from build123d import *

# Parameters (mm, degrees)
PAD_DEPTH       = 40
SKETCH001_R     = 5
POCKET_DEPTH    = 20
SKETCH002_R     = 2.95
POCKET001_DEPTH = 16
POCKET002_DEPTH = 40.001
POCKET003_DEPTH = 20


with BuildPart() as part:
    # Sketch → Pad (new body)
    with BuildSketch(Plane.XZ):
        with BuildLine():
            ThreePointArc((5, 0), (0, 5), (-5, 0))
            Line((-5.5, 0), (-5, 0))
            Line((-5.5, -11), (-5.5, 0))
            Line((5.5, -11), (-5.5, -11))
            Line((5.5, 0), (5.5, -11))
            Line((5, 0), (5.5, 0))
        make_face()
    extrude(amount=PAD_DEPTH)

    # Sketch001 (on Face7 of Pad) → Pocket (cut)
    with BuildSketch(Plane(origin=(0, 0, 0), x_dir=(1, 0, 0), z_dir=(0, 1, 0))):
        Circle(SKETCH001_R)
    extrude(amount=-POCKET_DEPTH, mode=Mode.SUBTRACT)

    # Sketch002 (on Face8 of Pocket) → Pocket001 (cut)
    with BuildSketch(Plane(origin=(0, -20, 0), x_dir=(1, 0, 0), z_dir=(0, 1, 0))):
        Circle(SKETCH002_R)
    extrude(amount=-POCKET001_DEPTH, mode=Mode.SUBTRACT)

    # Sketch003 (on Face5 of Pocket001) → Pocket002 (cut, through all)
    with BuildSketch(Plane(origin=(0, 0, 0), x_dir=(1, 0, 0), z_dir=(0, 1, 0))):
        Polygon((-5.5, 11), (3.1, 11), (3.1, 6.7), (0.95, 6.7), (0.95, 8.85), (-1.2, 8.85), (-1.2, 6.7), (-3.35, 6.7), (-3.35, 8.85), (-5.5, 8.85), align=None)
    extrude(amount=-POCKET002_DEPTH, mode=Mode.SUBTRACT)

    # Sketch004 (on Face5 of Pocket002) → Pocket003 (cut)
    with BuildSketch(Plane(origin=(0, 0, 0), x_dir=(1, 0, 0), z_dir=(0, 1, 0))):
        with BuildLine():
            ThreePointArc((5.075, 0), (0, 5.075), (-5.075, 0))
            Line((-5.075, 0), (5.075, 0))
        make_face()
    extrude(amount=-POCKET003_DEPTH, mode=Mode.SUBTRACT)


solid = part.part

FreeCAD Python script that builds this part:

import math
import FreeCAD as App
import Part
import Sketcher


def add_polygon(sketch, points):
    """Adds a closed chain of lines whose ends are joined by coincident constraints."""
    first, n = sketch.GeometryCount, len(points)
    for a, b in zip(points, points[1:] + points[:1]):
        sketch.addGeometry(Part.LineSegment(App.Vector(*a, 0), App.Vector(*b, 0)), False)
    for i in range(n):
        sketch.addConstraint(Sketcher.Constraint("Coincident", first + i, 2, first + (i + 1) % n, 1))

doc = App.newDocument("Part")
params = doc.addObject("Spreadsheet::Sheet", "Params")
for row, (alias, value) in enumerate([
    ("sketch1_radius", "5 mm"),
    ("sketch1_width", "11 mm"),
    ("pad1_length", "40 mm"),
    ("sketch2_diameter", "10 mm"),
    ("pocket1_length", "20 mm"),
    ("sketch3_diameter", "5.9 mm"),
    ("pocket2_length", "16 mm"),
    ("sketch4_width", "8.6 mm"),
    ("pocket4_length", "20 mm"),
], start=1):
    params.set(f"A{row}", alias)
    params.set(f"B{row}", "=" + value)
    params.setAlias(f"B{row}", alias)

body = doc.addObject("PartDesign::Body", "Body")

sketch1 = doc.addObject("Sketcher::SketchObject", "Sketch")
body.addObject(sketch1)
sketch1.AttachmentSupport = (doc.XZ_Plane, [""])
sketch1.MapMode = "FlatFace"
sketch1.addGeometry([
    Part.ArcOfCircle(Part.Circle(App.Vector(0, 0, 0), App.Vector(0, 0, 1), 5), math.radians(0), math.radians(180)),
    Part.LineSegment(App.Vector(-5, 0, 0), App.Vector(-5.5, 0, 0)),
    Part.LineSegment(App.Vector(-5.5, 0, 0), App.Vector(-5.5, -11, 0)),
    Part.LineSegment(App.Vector(-5.5, -11, 0), App.Vector(5.5, -11, 0)),
    Part.LineSegment(App.Vector(5.5, -11, 0), App.Vector(5.5, 0, 0)),
    Part.LineSegment(App.Vector(5.5, 0, 0), App.Vector(5, 0, 0)),
], False)
sketch1.addConstraint([
    Sketcher.Constraint("Coincident", 0, 2, 1, 1),
    Sketcher.Constraint("Coincident", 1, 2, 2, 1),
    Sketcher.Constraint("Coincident", 2, 2, 3, 1),
    Sketcher.Constraint("Coincident", 3, 2, 4, 1),
    Sketcher.Constraint("Coincident", 4, 2, 5, 1),
    Sketcher.Constraint("Coincident", 5, 2, 0, 1),
    Sketcher.Constraint("Horizontal", 1),
    Sketcher.Constraint("Vertical", 2),
    Sketcher.Constraint("Horizontal", 3),
    Sketcher.Constraint("Vertical", 4),
    Sketcher.Constraint("Horizontal", 5),
    Sketcher.Constraint("Coincident", 0, 3, -1, 1),
    Sketcher.Constraint("Symmetric", 1, 2, 4, 2, -1, 1),
    Sketcher.Constraint("PointOnObject", 0, 2, -1),
    Sketcher.Constraint("Equal", 3, 2),
    Sketcher.Constraint("Radius", 0, 5.0),
    Sketcher.Constraint("DistanceX", 3, 1, 3, 2, 11.0),
])
sketch1.setExpression("Constraints[15]", "Params.sketch1_radius")
sketch1.setExpression("Constraints[16]", "Params.sketch1_width")
pad1 = doc.addObject("PartDesign::Pad", "Pad")
body.addObject(pad1)
pad1.Profile = sketch1
pad1.setExpression("Length", "Params.pad1_length")

sketch2 = doc.addObject("Sketcher::SketchObject", "Sketch001")
body.addObject(sketch2)
sketch2.AttachmentSupport = (doc.XZ_Plane, [""])
sketch2.MapMode = "FlatFace"
sketch2.addGeometry(Part.Circle(App.Vector(0, 0, 0), App.Vector(0, 0, 1), 5), False)
sketch2.addConstraint([
    Sketcher.Constraint("Coincident", 0, 3, -1, 1),
    Sketcher.Constraint("Diameter", 0, 10.0),
])
sketch2.setExpression("Constraints[1]", "Params.sketch2_diameter")
pocket1 = doc.addObject("PartDesign::Pocket", "Pocket")
body.addObject(pocket1)
pocket1.Profile = sketch2
pocket1.setExpression("Length", "Params.pocket1_length")
pocket1.Reversed = True

sketch3 = doc.addObject("Sketcher::SketchObject", "Sketch002")
body.addObject(sketch3)
sketch3.AttachmentSupport = (doc.XZ_Plane, [""])
sketch3.MapMode = "FlatFace"
sketch3.AttachmentOffset = App.Placement(App.Vector(0, 0, 20), App.Rotation())
sketch3.addGeometry(Part.Circle(App.Vector(0, 0, 0), App.Vector(0, 0, 1), 2.95), False)
sketch3.addConstraint([
    Sketcher.Constraint("Coincident", 0, 3, -1, 1),
    Sketcher.Constraint("Diameter", 0, 5.9),
])
sketch3.setExpression("Constraints[1]", "Params.sketch3_diameter")
pocket2 = doc.addObject("PartDesign::Pocket", "Pocket001")
body.addObject(pocket2)
pocket2.Profile = sketch3
pocket2.setExpression("Length", "Params.pocket2_length")
pocket2.Reversed = True

sketch4 = doc.addObject("Sketcher::SketchObject", "Sketch003")
body.addObject(sketch4)
sketch4.AttachmentSupport = (doc.XZ_Plane, [""])
sketch4.MapMode = "FlatFace"
add_polygon(sketch4, [(3.1, -11), (-5.5, -11), (-5.5, -8.85), (-3.35, -8.85), (-3.35, -6.7), (-1.2, -6.7), (-1.2, -8.85), (0.95, -8.85), (0.95, -6.7), (3.1, -6.7)])
sketch4.addConstraint([
    Sketcher.Constraint("Horizontal", 0),
    Sketcher.Constraint("Vertical", 1),
    Sketcher.Constraint("Horizontal", 2),
    Sketcher.Constraint("Vertical", 3),
    Sketcher.Constraint("Horizontal", 4),
    Sketcher.Constraint("Vertical", 5),
    Sketcher.Constraint("Horizontal", 6),
    Sketcher.Constraint("Vertical", 7),
    Sketcher.Constraint("Horizontal", 8),
    Sketcher.Constraint("Vertical", 9),
    Sketcher.Constraint("Horizontal", 2, 2, 5, 2),
    Sketcher.Constraint("Horizontal", 4, 2, 7, 2),
    Sketcher.Constraint("Equal", 2, 4),
    Sketcher.Constraint("Equal", 4, 6),
    Sketcher.Constraint("Equal", 6, 8),
    Sketcher.Constraint("Equal", 8, 1),
    Sketcher.Constraint("Equal", 1, 3),
    Sketcher.Constraint("DistanceX", 0, 2, 0, 1, 8.6),
    Sketcher.Constraint("DistanceY", 0, 2, -1, 1, 11.0),
    Sketcher.Constraint("DistanceX", 0, 2, -1, 1, 5.5),
])
sketch4.setExpression("Constraints[27]", "Params.sketch4_width")
pocket3 = doc.addObject("PartDesign::Pocket", "Pocket002")
body.addObject(pocket3)
pocket3.Profile = sketch4
pocket3.Type = "ThroughAll"
pocket3.Reversed = True

sketch5 = doc.addObject("Sketcher::SketchObject", "Sketch004")
body.addObject(sketch5)
sketch5.AttachmentSupport = (doc.XZ_Plane, [""])
sketch5.MapMode = "FlatFace"
sketch5.addGeometry([
    Part.ArcOfCircle(Part.Circle(App.Vector(0, 0, 0), App.Vector(0, 0, 1), 5.075), math.radians(180), math.radians(360)),
    Part.LineSegment(App.Vector(-5.075, 0, 0), App.Vector(5.075, 0, 0)),
], False)
sketch5.addConstraint([
    Sketcher.Constraint("Coincident", 0, 1, 1, 1),
    Sketcher.Constraint("Coincident", 1, 2, 0, 2),
    Sketcher.Constraint("Horizontal", 1),
    Sketcher.Constraint("Coincident", 0, 3, -1, 1),
    Sketcher.Constraint("PointOnObject", 0, 1, -1),
    Sketcher.Constraint("Radius", 0, 5.075),
])
pocket4 = doc.addObject("PartDesign::Pocket", "Pocket003")
body.addObject(pocket4)
pocket4.Profile = sketch5
pocket4.setExpression("Length", "Params.pocket4_length")
pocket4.Reversed = True

doc.recompute()
